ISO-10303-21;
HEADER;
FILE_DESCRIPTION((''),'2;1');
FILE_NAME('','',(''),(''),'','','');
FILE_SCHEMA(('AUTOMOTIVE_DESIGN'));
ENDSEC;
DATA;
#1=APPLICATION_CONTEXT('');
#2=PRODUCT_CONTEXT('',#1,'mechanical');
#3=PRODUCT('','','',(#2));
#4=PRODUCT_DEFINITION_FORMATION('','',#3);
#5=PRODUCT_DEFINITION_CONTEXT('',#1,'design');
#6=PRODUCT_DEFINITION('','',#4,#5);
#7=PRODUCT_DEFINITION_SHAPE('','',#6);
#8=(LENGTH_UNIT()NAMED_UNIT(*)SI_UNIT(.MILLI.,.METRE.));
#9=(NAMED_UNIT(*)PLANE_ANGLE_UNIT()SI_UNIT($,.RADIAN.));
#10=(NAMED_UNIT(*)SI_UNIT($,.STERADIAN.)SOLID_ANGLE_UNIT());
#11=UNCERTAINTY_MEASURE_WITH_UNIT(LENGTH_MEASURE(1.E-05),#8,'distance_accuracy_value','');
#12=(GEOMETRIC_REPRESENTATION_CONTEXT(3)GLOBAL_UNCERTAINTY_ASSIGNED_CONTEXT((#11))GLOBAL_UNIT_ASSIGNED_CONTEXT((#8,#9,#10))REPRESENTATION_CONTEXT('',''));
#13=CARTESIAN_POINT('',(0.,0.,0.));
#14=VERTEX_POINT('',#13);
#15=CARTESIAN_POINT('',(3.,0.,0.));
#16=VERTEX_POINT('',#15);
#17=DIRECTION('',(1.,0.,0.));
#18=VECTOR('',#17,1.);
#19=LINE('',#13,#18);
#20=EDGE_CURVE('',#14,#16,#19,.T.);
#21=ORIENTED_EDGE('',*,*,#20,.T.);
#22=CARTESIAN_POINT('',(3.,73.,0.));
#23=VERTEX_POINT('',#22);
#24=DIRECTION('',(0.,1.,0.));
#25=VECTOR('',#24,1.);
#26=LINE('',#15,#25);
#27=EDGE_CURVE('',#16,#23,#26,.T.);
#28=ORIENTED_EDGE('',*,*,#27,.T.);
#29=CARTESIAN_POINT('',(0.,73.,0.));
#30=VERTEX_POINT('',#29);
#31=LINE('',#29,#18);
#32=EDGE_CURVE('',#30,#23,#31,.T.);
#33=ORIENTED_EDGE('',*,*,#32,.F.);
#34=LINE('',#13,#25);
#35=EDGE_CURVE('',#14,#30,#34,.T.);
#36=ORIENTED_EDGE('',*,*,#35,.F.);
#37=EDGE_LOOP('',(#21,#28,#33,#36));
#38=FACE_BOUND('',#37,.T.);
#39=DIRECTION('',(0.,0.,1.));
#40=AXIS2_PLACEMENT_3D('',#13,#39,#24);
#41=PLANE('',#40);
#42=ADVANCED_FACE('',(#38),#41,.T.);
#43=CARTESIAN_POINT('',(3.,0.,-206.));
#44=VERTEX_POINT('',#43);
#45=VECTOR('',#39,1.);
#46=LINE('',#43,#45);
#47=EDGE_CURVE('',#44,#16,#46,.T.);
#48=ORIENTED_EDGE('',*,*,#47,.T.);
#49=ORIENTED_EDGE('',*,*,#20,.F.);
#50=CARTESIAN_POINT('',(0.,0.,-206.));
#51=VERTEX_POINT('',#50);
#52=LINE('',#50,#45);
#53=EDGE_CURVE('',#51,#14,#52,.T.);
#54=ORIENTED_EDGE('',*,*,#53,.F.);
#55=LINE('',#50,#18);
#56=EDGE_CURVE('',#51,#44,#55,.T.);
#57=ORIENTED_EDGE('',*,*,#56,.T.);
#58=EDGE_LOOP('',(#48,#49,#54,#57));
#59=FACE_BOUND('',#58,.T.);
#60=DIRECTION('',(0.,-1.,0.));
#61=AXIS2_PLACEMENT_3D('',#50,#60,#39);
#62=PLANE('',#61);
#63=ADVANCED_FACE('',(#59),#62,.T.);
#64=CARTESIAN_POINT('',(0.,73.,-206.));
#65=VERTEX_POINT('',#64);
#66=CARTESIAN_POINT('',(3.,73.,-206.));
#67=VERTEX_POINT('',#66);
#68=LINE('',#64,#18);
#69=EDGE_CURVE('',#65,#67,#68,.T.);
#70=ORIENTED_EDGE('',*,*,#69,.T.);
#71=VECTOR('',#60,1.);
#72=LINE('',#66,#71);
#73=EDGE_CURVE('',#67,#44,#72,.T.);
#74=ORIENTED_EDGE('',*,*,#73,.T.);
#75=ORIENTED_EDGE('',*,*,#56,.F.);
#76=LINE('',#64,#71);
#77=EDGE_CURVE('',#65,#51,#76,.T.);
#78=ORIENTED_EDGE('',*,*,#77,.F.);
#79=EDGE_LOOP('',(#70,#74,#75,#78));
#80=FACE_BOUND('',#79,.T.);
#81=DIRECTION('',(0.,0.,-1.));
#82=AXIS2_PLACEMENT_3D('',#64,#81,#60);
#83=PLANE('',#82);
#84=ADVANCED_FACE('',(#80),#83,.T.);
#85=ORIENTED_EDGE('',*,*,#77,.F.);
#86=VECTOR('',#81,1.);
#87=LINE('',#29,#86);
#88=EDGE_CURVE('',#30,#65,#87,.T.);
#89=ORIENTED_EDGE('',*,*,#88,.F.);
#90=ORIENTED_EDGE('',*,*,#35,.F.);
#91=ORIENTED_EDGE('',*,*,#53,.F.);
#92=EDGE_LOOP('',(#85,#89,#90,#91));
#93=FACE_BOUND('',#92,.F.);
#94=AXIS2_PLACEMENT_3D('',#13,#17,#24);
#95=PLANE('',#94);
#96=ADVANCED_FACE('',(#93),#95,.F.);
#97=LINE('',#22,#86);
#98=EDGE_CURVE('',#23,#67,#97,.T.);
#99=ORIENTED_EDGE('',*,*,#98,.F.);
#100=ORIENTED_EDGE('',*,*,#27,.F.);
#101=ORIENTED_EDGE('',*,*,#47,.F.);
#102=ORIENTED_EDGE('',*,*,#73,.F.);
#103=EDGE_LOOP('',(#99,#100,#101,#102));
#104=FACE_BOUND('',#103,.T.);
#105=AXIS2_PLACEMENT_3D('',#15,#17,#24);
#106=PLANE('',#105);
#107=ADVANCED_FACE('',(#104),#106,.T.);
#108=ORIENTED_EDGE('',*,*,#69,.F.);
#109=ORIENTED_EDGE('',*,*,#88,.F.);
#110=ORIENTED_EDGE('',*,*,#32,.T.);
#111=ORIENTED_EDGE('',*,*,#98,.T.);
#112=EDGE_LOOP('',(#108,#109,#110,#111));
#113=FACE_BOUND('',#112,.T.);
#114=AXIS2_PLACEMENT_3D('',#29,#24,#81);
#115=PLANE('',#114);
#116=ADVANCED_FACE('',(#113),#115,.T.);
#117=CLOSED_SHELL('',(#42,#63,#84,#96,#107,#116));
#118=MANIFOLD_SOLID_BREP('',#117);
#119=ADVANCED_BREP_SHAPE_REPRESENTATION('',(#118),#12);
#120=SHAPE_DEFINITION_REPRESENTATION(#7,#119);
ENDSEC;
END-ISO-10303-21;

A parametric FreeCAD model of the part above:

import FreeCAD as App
import Part
import Sketcher
Q = App.Units.Quantity


def add_polygon(sketch, points):
    """Adds a closed chain of lines whose ends are joined by coincident constraints."""
    first, n = sketch.GeometryCount, len(points)
    for a, b in zip(points, points[1:] + points[:1]):
        sketch.addGeometry(Part.LineSegment(App.Vector(*a, 0), App.Vector(*b, 0)), False)
    for i in range(n):
        sketch.addConstraint(Sketcher.Constraint("Coincident", first + i, 2, first + (i + 1) % n, 1))

doc = App.newDocument("Part")
body = doc.addObject("PartDesign::Body", "Body")

sketch1 = doc.addObject("Sketcher::SketchObject", "Sketch")
body.addObject(sketch1)
sketch1.AttachmentSupport = (doc.YZ_Plane, [""])
sketch1.MapMode = "FlatFace"
add_polygon(sketch1, [(73, 0), (0, 0), (0, -206), (73, -206)])
sketch1.addConstraint([
    Sketcher.Constraint("Horizontal", 0),
    Sketcher.Constraint("Vertical", 1),
    Sketcher.Constraint("Horizontal", 2),
    Sketcher.Constraint("Vertical", 3),
    Sketcher.Constraint("Coincident", 0, 2, -1, 1),
    Sketcher.Constraint("DistanceX", 0, 2, 0, 1, Q("73 mm")),
    Sketcher.Constraint("DistanceY", 1, 2, 1, 1, Q("206 mm")),
])
pad1 = doc.addObject("PartDesign::Pad", "Pad")
body.addObject(pad1)
pad1.Profile = sketch1
pad1.Length = 3

doc.recompute()
